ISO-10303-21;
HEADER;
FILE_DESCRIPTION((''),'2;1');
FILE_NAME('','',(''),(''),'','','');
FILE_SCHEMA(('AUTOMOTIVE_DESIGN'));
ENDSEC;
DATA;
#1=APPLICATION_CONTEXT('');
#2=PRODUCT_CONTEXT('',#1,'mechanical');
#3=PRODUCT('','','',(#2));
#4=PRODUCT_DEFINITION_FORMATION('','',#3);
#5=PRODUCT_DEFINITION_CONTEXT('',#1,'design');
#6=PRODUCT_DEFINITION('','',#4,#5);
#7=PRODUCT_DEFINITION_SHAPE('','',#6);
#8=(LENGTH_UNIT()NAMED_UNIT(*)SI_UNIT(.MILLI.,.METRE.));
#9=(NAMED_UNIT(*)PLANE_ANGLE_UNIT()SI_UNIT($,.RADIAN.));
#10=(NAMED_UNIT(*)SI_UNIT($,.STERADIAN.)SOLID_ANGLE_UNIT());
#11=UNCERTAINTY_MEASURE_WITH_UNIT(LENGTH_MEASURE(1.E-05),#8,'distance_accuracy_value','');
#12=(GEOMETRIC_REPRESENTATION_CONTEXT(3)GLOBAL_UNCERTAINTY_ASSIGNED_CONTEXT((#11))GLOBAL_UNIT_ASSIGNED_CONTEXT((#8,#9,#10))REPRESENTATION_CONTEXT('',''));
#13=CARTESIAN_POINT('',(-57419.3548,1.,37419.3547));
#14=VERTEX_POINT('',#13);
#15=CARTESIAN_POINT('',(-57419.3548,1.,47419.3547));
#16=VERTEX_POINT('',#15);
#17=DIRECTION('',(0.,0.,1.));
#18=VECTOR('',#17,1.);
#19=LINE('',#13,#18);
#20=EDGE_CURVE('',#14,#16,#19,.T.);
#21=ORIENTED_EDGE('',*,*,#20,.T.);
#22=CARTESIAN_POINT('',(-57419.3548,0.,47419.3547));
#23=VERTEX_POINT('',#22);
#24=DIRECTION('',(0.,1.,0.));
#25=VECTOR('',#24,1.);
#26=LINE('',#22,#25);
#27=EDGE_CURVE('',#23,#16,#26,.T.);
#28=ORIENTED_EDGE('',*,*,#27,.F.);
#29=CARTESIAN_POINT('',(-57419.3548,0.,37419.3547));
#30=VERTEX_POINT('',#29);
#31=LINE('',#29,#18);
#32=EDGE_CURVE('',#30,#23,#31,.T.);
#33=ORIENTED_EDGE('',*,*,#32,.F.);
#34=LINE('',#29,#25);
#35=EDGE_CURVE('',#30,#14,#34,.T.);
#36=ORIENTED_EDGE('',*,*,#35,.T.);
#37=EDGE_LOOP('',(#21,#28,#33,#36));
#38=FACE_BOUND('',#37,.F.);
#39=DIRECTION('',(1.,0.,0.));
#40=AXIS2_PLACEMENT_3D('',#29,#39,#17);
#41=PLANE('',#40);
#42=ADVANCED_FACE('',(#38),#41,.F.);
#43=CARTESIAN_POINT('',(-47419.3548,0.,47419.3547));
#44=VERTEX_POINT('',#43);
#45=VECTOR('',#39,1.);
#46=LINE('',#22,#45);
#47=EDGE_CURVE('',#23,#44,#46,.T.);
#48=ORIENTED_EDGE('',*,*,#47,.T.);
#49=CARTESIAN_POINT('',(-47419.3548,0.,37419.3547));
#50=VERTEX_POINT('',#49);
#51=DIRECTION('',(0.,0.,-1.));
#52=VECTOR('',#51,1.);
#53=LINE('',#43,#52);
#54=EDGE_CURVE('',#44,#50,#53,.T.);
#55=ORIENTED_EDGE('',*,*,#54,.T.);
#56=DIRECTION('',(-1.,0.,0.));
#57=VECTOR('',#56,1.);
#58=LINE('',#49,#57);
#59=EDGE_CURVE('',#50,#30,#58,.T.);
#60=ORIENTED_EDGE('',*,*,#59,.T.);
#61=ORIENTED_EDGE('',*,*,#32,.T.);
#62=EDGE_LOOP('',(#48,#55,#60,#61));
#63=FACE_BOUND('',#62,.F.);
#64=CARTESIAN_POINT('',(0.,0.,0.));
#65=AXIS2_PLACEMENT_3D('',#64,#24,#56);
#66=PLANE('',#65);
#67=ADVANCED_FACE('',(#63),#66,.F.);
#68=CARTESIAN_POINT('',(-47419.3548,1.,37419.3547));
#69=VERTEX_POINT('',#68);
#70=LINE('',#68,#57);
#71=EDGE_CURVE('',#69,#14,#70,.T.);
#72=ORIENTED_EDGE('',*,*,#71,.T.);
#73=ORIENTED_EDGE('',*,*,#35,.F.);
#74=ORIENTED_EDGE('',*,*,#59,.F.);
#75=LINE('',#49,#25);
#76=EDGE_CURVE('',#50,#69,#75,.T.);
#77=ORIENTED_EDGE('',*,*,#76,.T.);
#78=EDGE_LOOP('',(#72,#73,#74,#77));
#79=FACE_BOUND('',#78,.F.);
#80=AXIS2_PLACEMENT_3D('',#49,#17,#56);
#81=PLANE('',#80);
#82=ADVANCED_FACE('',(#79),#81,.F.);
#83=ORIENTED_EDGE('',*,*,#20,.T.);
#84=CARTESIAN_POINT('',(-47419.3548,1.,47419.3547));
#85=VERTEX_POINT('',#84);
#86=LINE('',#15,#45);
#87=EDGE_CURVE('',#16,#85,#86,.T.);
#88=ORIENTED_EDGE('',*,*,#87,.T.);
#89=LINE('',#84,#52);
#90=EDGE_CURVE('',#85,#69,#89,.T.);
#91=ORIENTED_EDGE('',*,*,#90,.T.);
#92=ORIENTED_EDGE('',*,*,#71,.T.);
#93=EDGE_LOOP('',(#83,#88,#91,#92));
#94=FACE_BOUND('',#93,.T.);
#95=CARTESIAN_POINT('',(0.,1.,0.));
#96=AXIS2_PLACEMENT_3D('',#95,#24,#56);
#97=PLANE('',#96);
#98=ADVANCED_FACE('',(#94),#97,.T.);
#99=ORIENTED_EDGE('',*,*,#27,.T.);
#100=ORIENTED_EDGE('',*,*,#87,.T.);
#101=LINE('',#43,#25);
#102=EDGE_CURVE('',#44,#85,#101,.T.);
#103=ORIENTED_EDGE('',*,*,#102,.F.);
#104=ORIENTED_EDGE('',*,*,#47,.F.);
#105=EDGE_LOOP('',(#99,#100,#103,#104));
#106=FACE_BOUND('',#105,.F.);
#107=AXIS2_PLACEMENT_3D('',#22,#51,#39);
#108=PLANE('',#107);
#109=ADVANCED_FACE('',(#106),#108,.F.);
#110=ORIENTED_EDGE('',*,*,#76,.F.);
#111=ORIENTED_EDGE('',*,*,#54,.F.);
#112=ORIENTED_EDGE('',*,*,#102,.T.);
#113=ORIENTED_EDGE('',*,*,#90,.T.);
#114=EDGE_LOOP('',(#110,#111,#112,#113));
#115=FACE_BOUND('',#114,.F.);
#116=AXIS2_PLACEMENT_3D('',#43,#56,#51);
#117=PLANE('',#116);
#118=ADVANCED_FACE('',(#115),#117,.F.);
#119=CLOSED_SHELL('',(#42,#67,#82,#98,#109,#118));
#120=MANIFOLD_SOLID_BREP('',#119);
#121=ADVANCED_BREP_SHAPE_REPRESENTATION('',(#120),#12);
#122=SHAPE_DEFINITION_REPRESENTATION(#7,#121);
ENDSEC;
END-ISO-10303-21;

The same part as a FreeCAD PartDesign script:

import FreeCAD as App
import Part
import Sketcher
from FreeCAD import Vector
Q = App.Units.Quantity


def add_polygon(sketch, points):
    """Adds a closed chain of lines whose ends are joined by coincident constraints."""
    first, n = sketch.GeometryCount, len(points)
    for a, b in zip(points, points[1:] + points[:1]):
        sketch.addGeometry(Part.LineSegment(App.Vector(*a, 0), App.Vector(*b, 0)), False)
    for i in range(n):
        sketch.addConstraint(Sketcher.Constraint("Coincident", first + i, 2, first + (i + 1) % n, 1))

doc = App.newDocument("Part")
params = doc.addObject("Spreadsheet::Sheet", "Params")
for row, (alias, value) in enumerate([
    ("sketch1_width", "10000 mm"),
    ("pad1_length", "1 mm"),
], start=1):
    params.set(f"A{row}", alias)
    params.set(f"B{row}", "=" + value)
    params.setAlias(f"B{row}", alias)

body = doc.addObject("PartDesign::Body", "Body")

# Sketch on XZ plane
sketch1 = body.newObject("Sketcher::SketchObject", "Sketch")
sketch1.AttachmentSupport = (doc.getObject("XZ_Plane"), [""])
sketch1.MapMode = "FlatFace"
add_polygon(sketch1, [(-57419, 37419), (-57419, 47419), (-47419, 47419), (-47419, 37419)])  # lines 0-3
sketch1.addConstraint(Sketcher.Constraint("Vertical", 0))
sketch1.addConstraint(Sketcher.Constraint("Horizontal", 1))
sketch1.addConstraint(Sketcher.Constraint("Vertical", 2))
sketch1.addConstraint(Sketcher.Constraint("Horizontal", 3))
sketch1.addConstraint(Sketcher.Constraint("Equal", 3, 0))
sketch1.addConstraint(Sketcher.Constraint("DistanceX", 1, 1, 1, 2, Q("10000 mm")))
sketch1.addConstraint(Sketcher.Constraint("DistanceX", 0, 2, -1, 1, Q("57419.3548 mm")))
sketch1.addConstraint(Sketcher.Constraint("DistanceY", -1, 1, 0, 2, Q("47419.3547 mm")))
sketch1.setExpression("Constraints[9]", "Params.sketch1_width")
pad1 = body.newObject("PartDesign::Pad", "Pad")
pad1.Profile = sketch1
pad1.setExpression("Length", "Params.pad1_length")
pad1.Reversed = True

doc.recompute()
